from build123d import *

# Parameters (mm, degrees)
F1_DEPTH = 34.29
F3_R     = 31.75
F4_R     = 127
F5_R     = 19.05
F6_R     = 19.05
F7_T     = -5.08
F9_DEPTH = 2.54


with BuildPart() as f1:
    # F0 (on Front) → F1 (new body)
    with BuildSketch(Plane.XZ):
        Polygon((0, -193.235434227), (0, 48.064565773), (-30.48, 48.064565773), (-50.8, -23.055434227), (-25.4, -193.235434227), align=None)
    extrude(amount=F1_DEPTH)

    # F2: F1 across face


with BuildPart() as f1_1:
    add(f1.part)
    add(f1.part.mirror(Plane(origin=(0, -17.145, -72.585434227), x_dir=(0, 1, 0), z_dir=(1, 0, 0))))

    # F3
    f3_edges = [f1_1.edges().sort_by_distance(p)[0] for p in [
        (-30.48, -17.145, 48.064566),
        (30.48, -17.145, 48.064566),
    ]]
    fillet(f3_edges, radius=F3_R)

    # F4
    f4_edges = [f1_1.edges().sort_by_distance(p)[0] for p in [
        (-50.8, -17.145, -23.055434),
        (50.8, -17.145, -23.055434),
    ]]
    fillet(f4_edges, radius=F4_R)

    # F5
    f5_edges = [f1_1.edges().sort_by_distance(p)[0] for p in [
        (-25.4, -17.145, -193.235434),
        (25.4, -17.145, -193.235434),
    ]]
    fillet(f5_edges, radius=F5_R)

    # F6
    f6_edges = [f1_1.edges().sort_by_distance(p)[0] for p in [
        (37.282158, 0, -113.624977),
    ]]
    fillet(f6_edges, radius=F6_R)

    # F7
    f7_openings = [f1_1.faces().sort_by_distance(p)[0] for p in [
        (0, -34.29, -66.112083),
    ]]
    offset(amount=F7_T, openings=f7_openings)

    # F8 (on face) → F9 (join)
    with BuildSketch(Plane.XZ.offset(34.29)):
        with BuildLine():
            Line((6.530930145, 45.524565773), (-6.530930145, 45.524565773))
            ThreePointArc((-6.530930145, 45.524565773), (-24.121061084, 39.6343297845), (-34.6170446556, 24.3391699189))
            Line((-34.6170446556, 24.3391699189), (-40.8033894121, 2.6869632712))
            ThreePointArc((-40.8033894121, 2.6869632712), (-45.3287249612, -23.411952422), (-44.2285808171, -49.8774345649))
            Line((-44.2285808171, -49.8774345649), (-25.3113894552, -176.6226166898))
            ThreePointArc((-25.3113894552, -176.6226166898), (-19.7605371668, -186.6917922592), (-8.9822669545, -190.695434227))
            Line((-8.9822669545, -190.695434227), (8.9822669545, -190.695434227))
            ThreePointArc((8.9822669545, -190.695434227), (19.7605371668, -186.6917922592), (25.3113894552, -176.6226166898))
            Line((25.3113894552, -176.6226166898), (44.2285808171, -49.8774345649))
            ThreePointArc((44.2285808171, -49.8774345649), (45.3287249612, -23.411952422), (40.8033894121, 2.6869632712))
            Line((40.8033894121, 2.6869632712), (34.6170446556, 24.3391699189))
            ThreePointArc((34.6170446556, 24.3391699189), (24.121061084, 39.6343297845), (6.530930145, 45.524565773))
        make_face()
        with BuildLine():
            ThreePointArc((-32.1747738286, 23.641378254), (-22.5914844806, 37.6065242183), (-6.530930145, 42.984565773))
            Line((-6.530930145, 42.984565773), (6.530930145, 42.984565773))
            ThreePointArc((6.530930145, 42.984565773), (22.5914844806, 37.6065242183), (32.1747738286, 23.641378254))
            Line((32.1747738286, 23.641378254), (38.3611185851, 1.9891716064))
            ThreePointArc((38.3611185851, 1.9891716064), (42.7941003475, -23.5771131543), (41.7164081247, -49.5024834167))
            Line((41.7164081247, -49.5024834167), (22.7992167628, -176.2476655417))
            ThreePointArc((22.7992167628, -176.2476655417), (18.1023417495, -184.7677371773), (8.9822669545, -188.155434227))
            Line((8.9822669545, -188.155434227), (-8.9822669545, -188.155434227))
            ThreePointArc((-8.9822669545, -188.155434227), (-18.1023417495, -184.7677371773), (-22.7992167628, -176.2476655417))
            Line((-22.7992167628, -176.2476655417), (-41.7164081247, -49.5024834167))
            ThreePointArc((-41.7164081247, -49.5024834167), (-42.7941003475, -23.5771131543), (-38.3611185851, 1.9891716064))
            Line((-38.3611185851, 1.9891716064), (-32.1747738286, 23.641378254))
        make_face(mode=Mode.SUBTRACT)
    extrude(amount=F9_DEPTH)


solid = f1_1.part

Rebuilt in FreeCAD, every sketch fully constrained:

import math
import FreeCAD as App
import Part
import Sketcher

V = App.Vector
Q = App.Units.Quantity


def edges_at(feature, points):
    """Names of the edges that pass closest to the given points."""
    edges = feature.Shape.Edges
    near = lambda p: min(range(len(edges)), key=lambda i: edges[i].distToShape(Part.Vertex(*p))[0])
    return sorted({f"Edge{near(p) + 1}" for p in points})


def faces_at(feature, points):
    """Names of the faces that lie closest to the given points."""
    faces = feature.Shape.Faces
    near = lambda p: min(range(len(faces)), key=lambda i: faces[i].distToShape(Part.Vertex(*p))[0])
    return sorted({f"Face{near(p) + 1}" for p in points})


def add_polygon(sketch, points):
    """Adds a closed chain of lines whose ends are joined by coincident constraints."""
    first, n = sketch.GeometryCount, len(points)
    for a, b in zip(points, points[1:] + points[:1]):
        sketch.addGeometry(Part.LineSegment(App.Vector(*a, 0), App.Vector(*b, 0)), False)
    for i in range(n):
        sketch.addConstraint(Sketcher.Constraint("Coincident", first + i, 2, first + (i + 1) % n, 1))

doc = App.newDocument("Part")
body = doc.addObject("PartDesign::Body", "Body")

# Sketch on XZ plane
sketch1 = body.newObject("Sketcher::SketchObject", "Sketch")
sketch1.AttachmentSupport = (doc.getObject("XZ_Plane"), [""])
sketch1.MapMode = "FlatFace"
add_polygon(sketch1, [(0, -193), (0, 48), (-30, 48), (-51, -23), (-25, -193)])  # lines 0-4
sketch1.addConstraint([
    Sketcher.Constraint("Vertical", 0),
    Sketcher.Constraint("Horizontal", 1),
    Sketcher.Constraint("Horizontal", 4),
    Sketcher.Constraint("PointOnObject", 0, 2, -2),
    Sketcher.Constraint("DistanceX", 4, 1, 4, 2, Q("1 in")),
    Sketcher.Constraint("DistanceX", 1, 2, 1, 1, Q("1.2 in")),
    Sketcher.Constraint("DistanceY", 0, 1, 0, 2, Q("9.5 in")),
    Sketcher.Constraint("DistanceX", 2, 2, -1, 1, Q("2 in")),
    Sketcher.Constraint("DistanceY", 2, 2, 1, 2, Q("2.8 in")),
    Sketcher.Constraint("DistanceY", -1, 1, 0, 2, 48.064566),
])
pad1 = body.newObject("PartDesign::Pad", "Pad")
pad1.Profile = sketch1
pad1.Length = Q("1.35 in")
body2 = doc.addObject("PartDesign::Body", "Body001")
doc.recompute()

body2.BaseFeature = body
doc.recompute()

mirroring = doc.addObject("Part::Mirroring", "Mirroring")
mirroring.Source = body
mirroring.Base = V(0, -17.145, -72.585434)
mirroring.Normal = V(1, 0, 0)
body3 = doc.addObject("PartDesign::Body", "Body002")
body3.BaseFeature = mirroring
boolean = body2.newObject("PartDesign::Boolean", "Boolean")
boolean.Type = "Fuse"
boolean.addObjects([body3])
doc.recompute()

fillet = body2.newObject("PartDesign::Fillet", "Fillet")
fillet.Base = (boolean, edges_at(boolean, [(-30.48, -17.145, 48.065), (30.48, -17.145, 48.065)]))
fillet.Radius = Q("1.25 in")
doc.recompute()

fillet2 = body2.newObject("PartDesign::Fillet", "Fillet001")
fillet2.Base = (fillet, edges_at(fillet, [(-50.8, -17.145, -23.055), (50.8, -17.145, -23.055)]))
fillet2.Radius = Q("5 in")
doc.recompute()

fillet3 = body2.newObject("PartDesign::Fillet", "Fillet002")
fillet3.Base = (fillet2, edges_at(fillet2, [(-25.4, -17.145, -193.235), (25.4, -17.145, -193.235)]))
fillet3.Radius = Q("0.75 in")
doc.recompute()

fillet4 = body2.newObject("PartDesign::Fillet", "Fillet003")
fillet4.Base = (fillet3, edges_at(fillet3, [(37.282, 0, -113.625)]))
fillet4.Radius = Q("0.75 in")
doc.recompute()

thickness = body2.newObject("PartDesign::Thickness", "Thickness")
thickness.Base = (fillet4, faces_at(fillet4, [(0, -34.29, -72.585)]))
thickness.Value = Q("0.2 in")
thickness.Reversed = True
thickness.Join = "Arc"

# Sketch on XZ plane
sketch2 = body2.newObject("Sketcher::SketchObject", "Sketch001")
sketch2.AttachmentSupport = (doc.getObject("XZ_Plane001"), [""])
sketch2.MapMode = "FlatFace"
sketch2.AttachmentOffset = App.Placement(V(0, 0, 1.35 * 25.4), App.Rotation())
sketch2.addGeometry([
    Part.LineSegment(V(7, 46, 0), V(-7, 46, 0)),  # 0
    Part.ArcOfCircle(Part.Circle(V(-7, 16, 0), V(0, 0, 1), 29), math.radians(90), math.radians(164)),  # 1
    Part.LineSegment(V(-35, 24, 0), V(-41, 3, 0)),  # 2
    Part.ArcOfCircle(Part.Circle(V(79, -32, 0), V(0, 0, 1), 124), math.radians(164), math.radians(188)),  # 3
    Part.LineSegment(V(-44, -50, 0), V(-25, -177, 0)),  # 4
    Part.ArcOfCircle(Part.Circle(V(-9, -174, 0), V(0, 0, 1), 17), math.radians(-172), math.radians(-90)),  # 5
    Part.LineSegment(V(-9, -191, 0), V(9, -191, 0)),  # 6
    Part.ArcOfCircle(Part.Circle(V(9, -174, 0), V(0, 0, 1), 17), math.radians(-90), math.radians(-8)),  # 7
    Part.LineSegment(V(25, -177, 0), V(44, -50, 0)),  # 8
    Part.ArcOfCircle(Part.Circle(V(-79, -32, 0), V(0, 0, 1), 124), math.radians(-8), math.radians(16)),  # 9
    Part.LineSegment(V(41, 3, 0), V(35, 24, 0)),  # 10
    Part.ArcOfCircle(Part.Circle(V(7, 16, 0), V(0, 0, 1), 29), math.radians(16), math.radians(90)),  # 11
    Part.LineSegment(V(-38, 2, 0), V(-32, 24, 0)),  # 12
    Part.ArcOfCircle(Part.Circle(V(-7, 16, 0), V(0, 0, 1), 27), math.radians(90), math.radians(164)),  # 13
    Part.LineSegment(V(-7, 43, 0), V(7, 43, 0)),  # 14
    Part.ArcOfCircle(Part.Circle(V(7, 16, 0), V(0, 0, 1), 27), math.radians(16), math.radians(90)),  # 15
    Part.LineSegment(V(32, 24, 0), V(38, 2, 0)),  # 16
    Part.ArcOfCircle(Part.Circle(V(-79, -32, 0), V(0, 0, 1), 122), math.radians(-8), math.radians(16)),  # 17
    Part.LineSegment(V(42, -50, 0), V(23, -176, 0)),  # 18
    Part.ArcOfCircle(Part.Circle(V(9, -174, 0), V(0, 0, 1), 14), math.radians(-90), math.radians(-8)),  # 19
    Part.LineSegment(V(9, -188, 0), V(-9, -188, 0)),  # 20
    Part.ArcOfCircle(Part.Circle(V(-9, -174, 0), V(0, 0, 1), 14), math.radians(-172), math.radians(-90)),  # 21
    Part.LineSegment(V(-23, -176, 0), V(-42, -50, 0)),  # 22
    Part.ArcOfCircle(Part.Circle(V(79, -32, 0), V(0, 0, 1), 122), math.radians(164), math.radians(188)),  # 23
], False)
sketch2.addConstraint([
    Sketcher.Constraint("Tangent", 0, 2, 1, 1),
    Sketcher.Constraint("Tangent", 1, 2, 2, 1),
    Sketcher.Constraint("Tangent", 2, 2, 3, 1),
    Sketcher.Constraint("Tangent", 3, 2, 4, 1),
    Sketcher.Constraint("Tangent", 4, 2, 5, 1),
    Sketcher.Constraint("Tangent", 5, 2, 6, 1),
    Sketcher.Constraint("Tangent", 6, 2, 7, 1),
    Sketcher.Constraint("Tangent", 7, 2, 8, 1),
    Sketcher.Constraint("Tangent", 8, 2, 9, 1),
    Sketcher.Constraint("Tangent", 9, 2, 10, 1),
    Sketcher.Constraint("Tangent", 10, 2, 11, 1),
    Sketcher.Constraint("Tangent", 11, 2, 0, 1),
    Sketcher.Constraint("Tangent", 12, 2, 13, 2),
    Sketcher.Constraint("Tangent", 13, 1, 14, 1),
    Sketcher.Constraint("Tangent", 14, 2, 15, 2),
    Sketcher.Constraint("Tangent", 15, 1, 16, 1),
    Sketcher.Constraint("Tangent", 16, 2, 17, 2),
    Sketcher.Constraint("Tangent", 17, 1, 18, 1),
    Sketcher.Constraint("Tangent", 18, 2, 19, 2),
    Sketcher.Constraint("Tangent", 19, 1, 20, 1),
    Sketcher.Constraint("Tangent", 20, 2, 21, 2),
    Sketcher.Constraint("Tangent", 21, 1, 22, 1),
    Sketcher.Constraint("Tangent", 22, 2, 23, 2),
    Sketcher.Constraint("Tangent", 23, 1, 12, 1),
    Sketcher.Constraint("Horizontal", 0),
    Sketcher.Constraint("Horizontal", 6),
    Sketcher.Constraint("Horizontal", 14),
    Sketcher.Constraint("Horizontal", 20),
    Sketcher.Constraint("Coincident", 13, 3, 1, 3),
    Sketcher.Constraint("Coincident", 15, 3, 11, 3),
    Sketcher.Constraint("Coincident", 17, 3, 9, 3),
    Sketcher.Constraint("Coincident", 19, 3, 7, 3),
    Sketcher.Constraint("Coincident", 21, 3, 5, 3),
    Sketcher.Constraint("Coincident", 23, 3, 3, 3),
    Sketcher.Constraint("Equal", 5, 7),
    Sketcher.Constraint("Equal", 3, 9),
    Sketcher.Constraint("Equal", 1, 11),
    Sketcher.Constraint("Equal", 17, 23),
    Sketcher.Constraint("Symmetric", 3, 3, 9, 3, -2),
    Sketcher.Constraint("Parallel", 2, 12),
    Sketcher.Constraint("Parallel", 8, 18),
    Sketcher.Constraint("Horizontal", 4, 2, 7, 2),
    Sketcher.Constraint("Horizontal", 2, 2, 9, 2),
    Sketcher.Constraint("Radius", 3, Q("4.9 in")),
    Sketcher.Constraint("Radius", 17, Q("4.8 in")),
    Sketcher.Constraint("Radius", 1, Q("1.15 in")),
    Sketcher.Constraint("Radius", 5, Q("0.65 in")),
    Sketcher.Constraint("DistanceY", 5, 3, 1, 3, Q("7.5 in")),
    Sketcher.Constraint("DistanceX", 12, 2, 1, 3, Q("1.0096001 in")),
    Sketcher.Constraint("DistanceX", 0, 2, 0, 1, 13.06186),
    Sketcher.Constraint("DistanceX", 9, 3, 3, 2, 34.6393),
    Sketcher.Constraint("DistanceY", 3, 2, 1, 3, 66.192),
    Sketcher.Constraint("DistanceY", 3, 3, -1, 1, 31.504828),
])
pad2 = body2.newObject("PartDesign::Pad", "Pad001")
pad2.Profile = sketch2
pad2.Length = Q("0.1 in")
mirroring.Visibility = False

doc.recompute()
